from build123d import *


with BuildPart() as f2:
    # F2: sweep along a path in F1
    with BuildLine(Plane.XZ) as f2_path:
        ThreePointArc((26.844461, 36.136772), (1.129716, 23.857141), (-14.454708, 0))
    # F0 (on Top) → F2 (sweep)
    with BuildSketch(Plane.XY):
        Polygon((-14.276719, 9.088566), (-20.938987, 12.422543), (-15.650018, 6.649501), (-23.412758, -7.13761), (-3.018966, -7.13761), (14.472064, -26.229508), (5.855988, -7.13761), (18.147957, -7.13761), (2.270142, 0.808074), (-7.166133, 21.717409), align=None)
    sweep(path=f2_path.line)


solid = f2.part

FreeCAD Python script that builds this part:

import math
import FreeCAD as App
import Part
import Sketcher

V = App.Vector
Q = App.Units.Quantity

doc = App.newDocument("Part")
body = doc.addObject("PartDesign::Body", "Body")

sketch1 = body.newObject("Sketcher::SketchObject", "Sketch")
sketch1.AttachmentSupport = (doc.getObject("XY_Plane"), [""])
sketch1.MapMode = "FlatFace"
sketch1.addGeometry([
    Part.LineSegment(V(-14, 9, 0), V(-21, 12, 0)),
    Part.LineSegment(V(-21, 12, 0), V(-16, 7, 0)),
    Part.LineSegment(V(-16, 7, 0), V(-23, -7, 0)),
    Part.LineSegment(V(-23, -7, 0), V(-3, -7, 0)),
    Part.LineSegment(V(-3, -7, 0), V(14, -26, 0)),
    Part.LineSegment(V(14, -26, 0), V(6, -7, 0)),
    Part.LineSegment(V(6, -7, 0), V(18, -7, 0)),
    Part.LineSegment(V(18, -7, 0), V(2, 1, 0)),
    Part.LineSegment(V(2, 1, 0), V(-7, 22, 0)),
    Part.LineSegment(V(-7, 22, 0), V(-14, 9, 0)),
], False)
sketch1.addConstraint([
    Sketcher.Constraint("Coincident", 0, 2, 1, 1),
    Sketcher.Constraint("Coincident", 1, 2, 2, 1),
    Sketcher.Constraint("Coincident", 2, 2, 3, 1),
    Sketcher.Constraint("Coincident", 3, 2, 4, 1),
    Sketcher.Constraint("Coincident", 4, 2, 5, 1),
    Sketcher.Constraint("Coincident", 5, 2, 6, 1),
    Sketcher.Constraint("Coincident", 6, 2, 7, 1),
    Sketcher.Constraint("Coincident", 7, 2, 8, 1),
    Sketcher.Constraint("Coincident", 8, 2, 9, 1),
    Sketcher.Constraint("Coincident", 9, 2, 0, 1),
    Sketcher.Constraint("Horizontal", 3),
    Sketcher.Constraint("Horizontal", 6),
    Sketcher.Constraint("Parallel", 1, 4),
    Sketcher.Constraint("Parallel", 0, 7),
    Sketcher.Constraint("Parallel", 5, 8),
    Sketcher.Constraint("Parallel", 2, 9),
    Sketcher.Constraint("Horizontal", 3, 2, 5, 2),
    Sketcher.Constraint("Distance", 8, Q("22.939999 mm")),
    Sketcher.Constraint("DistanceX", 6, 1, 6, 2, Q("12.291969 mm")),
    Sketcher.Constraint("DistanceY", -1, 1, 1, 2, Q("6.649501 mm")),
    Sketcher.Constraint("DistanceY", 4, 2, 3, 2, Q("19.091898 mm")),
    Sketcher.Constraint("DistanceX", 1, 2, 9, 2, Q("1.373299 mm")),
    Sketcher.Constraint("Distance", 1, Q("7.829509 mm")),
    Sketcher.Constraint("Distance", 2, Q("15.822281 mm")),
    Sketcher.Constraint("Distance", 7, Q("17.754968 mm")),
    Sketcher.Constraint("DistanceX", 3, 1, 3, 2, Q("20.393792 mm")),
    Sketcher.Constraint("DistanceX", 2, 2, -1, 1, Q("23.412758 mm")),
    Sketcher.Constraint("DistanceY", 2, 2, -1, 1, Q("7.13761 mm")),
    Sketcher.Constraint("DistanceX", -1, 1, 7, 2, Q("2.270142 mm")),
    Sketcher.Constraint("DistanceY", -1, 1, 8, 2, Q("21.717409 mm")),
])

sketch2 = body.newObject("Sketcher::SketchObject", "Sketch001")
sketch2.AttachmentSupport = (doc.getObject("XZ_Plane"), [""])
sketch2.MapMode = "FlatFace"
sketch2.addGeometry(Part.ArcOfCircle(Part.Circle(V(36, -16, 0), V(0, 0, 1), 53), math.radians(100), math.radians(163)), False)
sketch2.addConstraint([
    Sketcher.Constraint("PointOnObject", 0, 2, -1),
    Sketcher.Constraint("Radius", 0, Q("52.785138 mm")),
    Sketcher.Constraint("DistanceX", -1, 1, 0, 1, Q("26.844461 mm")),
    Sketcher.Constraint("DistanceX", 0, 2, -1, 1, Q("14.454708 mm")),
    Sketcher.Constraint("DistanceX", 0, 1, 0, 3, Q("9.044511 mm")),
])
doc.recompute()

additivepipe = body.newObject("PartDesign::AdditivePipe", "AdditivePipe")
additivepipe.Profile = sketch1
additivepipe.Spine = (sketch2, ["Edge1"])

doc.recompute()
